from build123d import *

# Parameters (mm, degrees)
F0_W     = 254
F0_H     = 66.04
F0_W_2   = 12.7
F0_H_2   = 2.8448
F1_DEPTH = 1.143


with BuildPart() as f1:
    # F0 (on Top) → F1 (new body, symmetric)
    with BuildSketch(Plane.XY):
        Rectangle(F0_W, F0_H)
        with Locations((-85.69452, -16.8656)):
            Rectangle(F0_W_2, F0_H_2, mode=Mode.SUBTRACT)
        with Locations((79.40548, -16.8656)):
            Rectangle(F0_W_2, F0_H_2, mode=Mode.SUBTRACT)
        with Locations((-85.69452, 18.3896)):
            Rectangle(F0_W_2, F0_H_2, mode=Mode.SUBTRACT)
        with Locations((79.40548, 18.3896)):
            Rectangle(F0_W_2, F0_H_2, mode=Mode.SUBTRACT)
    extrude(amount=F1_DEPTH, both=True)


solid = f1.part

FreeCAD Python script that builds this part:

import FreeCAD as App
import Part
import Sketcher

V = App.Vector
Q = App.Units.Quantity


def add_polygon(sketch, points):
    """Adds a closed chain of lines whose ends are joined by coincident constraints."""
    first, n = sketch.GeometryCount, len(points)
    for a, b in zip(points, points[1:] + points[:1]):
        sketch.addGeometry(Part.LineSegment(App.Vector(*a, 0), App.Vector(*b, 0)), False)
    for i in range(n):
        sketch.addConstraint(Sketcher.Constraint("Coincident", first + i, 2, first + (i + 1) % n, 1))

doc = App.newDocument("Part")
body = doc.addObject("PartDesign::Body", "Body")

# Sketch on XY plane
sketch1 = body.newObject("Sketcher::SketchObject", "Sketch")
sketch1.AttachmentSupport = (doc.getObject("XY_Plane"), [""])
sketch1.MapMode = "FlatFace"
add_polygon(sketch1, [(-127, 33), (-127, -33), (127, -33), (127, 33)])  # lines 0-3
add_polygon(sketch1, [(-79.3, -18.3), (-92, -18.3), (-92, -15.4), (-79.3, -15.4)])  # lines 4-7
add_polygon(sketch1, [(85.8, -18.3), (73.1, -18.3), (73.1, -15.4), (85.8, -15.4)])  # lines 8-11
add_polygon(sketch1, [(-79.3, 17), (-92, 17), (-92, 19.8), (-79.3, 19.8)])  # lines 12-15
add_polygon(sketch1, [(85.8, 17), (73.1, 17), (73.1, 19.8), (85.8, 19.8)])  # lines 16-19
sketch1.addConstraint([
    Sketcher.Constraint("Vertical", 0),
    Sketcher.Constraint("Horizontal", 1),
    Sketcher.Constraint("Vertical", 2),
    Sketcher.Constraint("Horizontal", 3),
    Sketcher.Constraint("Horizontal", 4),
    Sketcher.Constraint("Vertical", 5),
    Sketcher.Constraint("Horizontal", 6),
    Sketcher.Constraint("Vertical", 7),
    Sketcher.Constraint("Horizontal", 8),
    Sketcher.Constraint("Vertical", 9),
    Sketcher.Constraint("Horizontal", 10),
    Sketcher.Constraint("Vertical", 11),
    Sketcher.Constraint("Horizontal", 12),
    Sketcher.Constraint("Vertical", 13),
    Sketcher.Constraint("Horizontal", 14),
    Sketcher.Constraint("Vertical", 15),
    Sketcher.Constraint("Horizontal", 16),
    Sketcher.Constraint("Vertical", 17),
    Sketcher.Constraint("Horizontal", 18),
    Sketcher.Constraint("Vertical", 19),
    Sketcher.Constraint("Symmetric", 0, 2, 2, 2, -1, 1),
    Sketcher.Constraint("Horizontal", 7, 2, 8, 2),
    Sketcher.Constraint("Horizontal", 6, 2, 9, 2),
    Sketcher.Constraint("Horizontal", 15, 2, 16, 2),
    Sketcher.Constraint("Horizontal", 14, 2, 17, 2),
    Sketcher.Constraint("Vertical", 5, 2, 12, 2),
    Sketcher.Constraint("Vertical", 7, 2, 14, 2),
    Sketcher.Constraint("Vertical", 9, 2, 16, 2),
    Sketcher.Constraint("Vertical", 11, 2, 18, 2),
    Sketcher.Constraint("Equal", 6, 8),
    Sketcher.Constraint("Equal", 11, 13),
    Sketcher.Constraint("DistanceX", 1, 1, 1, 2, Q("10 in")),
    Sketcher.Constraint("DistanceX", 4, 2, 4, 1, Q("0.5 in")),
    Sketcher.Constraint("DistanceY", 0, 2, 0, 1, Q("2.6 in")),
    Sketcher.Constraint("DistanceX", 7, 2, 8, 2, Q("6 in")),
    Sketcher.Constraint("DistanceY", 4, 2, 13, 2, Q("1.5 in")),
    Sketcher.Constraint("DistanceY", 5, 1, 5, 2, Q("0.112 in")),
    Sketcher.Constraint("DistanceY", 4, 2, -1, 1, Q("0.72 in")),
    Sketcher.Constraint("DistanceX", 4, 2, -1, 1, Q("3.6238 in")),
])
pad1 = body.newObject("PartDesign::Pad", "Pad")
pad1.Profile = sketch1
pad1.Length = Q("0.09 in")
pad1.Midplane = True

doc.recompute()
